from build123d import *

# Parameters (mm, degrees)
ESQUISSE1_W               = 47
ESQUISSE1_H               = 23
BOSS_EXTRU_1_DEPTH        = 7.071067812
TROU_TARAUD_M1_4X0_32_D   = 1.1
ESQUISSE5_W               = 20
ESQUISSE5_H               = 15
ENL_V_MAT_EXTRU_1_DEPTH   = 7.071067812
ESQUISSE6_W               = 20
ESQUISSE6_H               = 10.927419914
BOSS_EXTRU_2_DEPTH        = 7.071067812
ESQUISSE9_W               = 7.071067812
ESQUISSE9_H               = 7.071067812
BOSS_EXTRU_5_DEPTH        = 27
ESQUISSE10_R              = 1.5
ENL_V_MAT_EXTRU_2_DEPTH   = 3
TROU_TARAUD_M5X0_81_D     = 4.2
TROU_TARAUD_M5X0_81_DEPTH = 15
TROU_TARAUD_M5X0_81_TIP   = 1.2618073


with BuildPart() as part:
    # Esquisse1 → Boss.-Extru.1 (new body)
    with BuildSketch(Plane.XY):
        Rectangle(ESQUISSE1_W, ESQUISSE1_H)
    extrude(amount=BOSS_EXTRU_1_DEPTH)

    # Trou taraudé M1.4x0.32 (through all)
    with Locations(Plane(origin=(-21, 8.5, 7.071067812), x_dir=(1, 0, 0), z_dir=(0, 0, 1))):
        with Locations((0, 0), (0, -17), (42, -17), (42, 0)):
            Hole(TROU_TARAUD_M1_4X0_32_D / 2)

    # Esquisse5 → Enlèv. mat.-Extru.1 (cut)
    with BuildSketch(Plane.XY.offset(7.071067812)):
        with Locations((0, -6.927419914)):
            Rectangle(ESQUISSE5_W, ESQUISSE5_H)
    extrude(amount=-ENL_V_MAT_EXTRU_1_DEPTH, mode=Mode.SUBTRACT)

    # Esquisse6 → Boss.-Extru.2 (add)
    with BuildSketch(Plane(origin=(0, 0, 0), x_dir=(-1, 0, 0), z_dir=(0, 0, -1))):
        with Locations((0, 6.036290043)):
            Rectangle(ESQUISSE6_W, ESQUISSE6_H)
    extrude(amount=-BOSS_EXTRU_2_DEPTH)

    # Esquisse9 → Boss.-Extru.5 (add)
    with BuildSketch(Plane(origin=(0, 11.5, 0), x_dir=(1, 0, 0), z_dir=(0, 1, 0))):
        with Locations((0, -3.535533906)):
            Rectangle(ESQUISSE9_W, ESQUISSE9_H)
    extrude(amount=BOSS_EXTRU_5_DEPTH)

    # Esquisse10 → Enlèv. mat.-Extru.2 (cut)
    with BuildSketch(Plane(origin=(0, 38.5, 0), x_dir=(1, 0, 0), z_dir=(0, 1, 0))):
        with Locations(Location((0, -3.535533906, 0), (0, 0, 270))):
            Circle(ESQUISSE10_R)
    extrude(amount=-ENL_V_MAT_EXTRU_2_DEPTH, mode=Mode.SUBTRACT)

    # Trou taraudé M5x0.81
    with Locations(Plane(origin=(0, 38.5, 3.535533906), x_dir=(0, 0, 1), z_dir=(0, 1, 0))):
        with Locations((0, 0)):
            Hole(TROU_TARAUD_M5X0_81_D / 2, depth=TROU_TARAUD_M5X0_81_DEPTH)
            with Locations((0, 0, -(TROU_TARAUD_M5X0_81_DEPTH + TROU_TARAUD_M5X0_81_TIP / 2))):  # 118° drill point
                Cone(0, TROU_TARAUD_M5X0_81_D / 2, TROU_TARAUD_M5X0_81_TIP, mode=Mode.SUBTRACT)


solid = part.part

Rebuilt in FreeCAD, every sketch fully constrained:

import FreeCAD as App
import Part
import Sketcher

V = App.Vector
Q = App.Units.Quantity


def add_polygon(sketch, points):
    """Adds a closed chain of lines whose ends are joined by coincident constraints."""
    first, n = sketch.GeometryCount, len(points)
    for a, b in zip(points, points[1:] + points[:1]):
        sketch.addGeometry(Part.LineSegment(App.Vector(*a, 0), App.Vector(*b, 0)), False)
    for i in range(n):
        sketch.addConstraint(Sketcher.Constraint("Coincident", first + i, 2, first + (i + 1) % n, 1))

doc = App.newDocument("Part")
body = doc.addObject("PartDesign::Body", "Body")

sketch1 = body.newObject("Sketcher::SketchObject", "Sketch")
sketch1.AttachmentSupport = (doc.getObject("XY_Plane"), [""])
sketch1.MapMode = "FlatFace"
add_polygon(sketch1, [(-24, 12), (-24, -12), (24, -12), (24, 12)])
sketch1.addConstraint(Sketcher.Constraint("Vertical", 0))
sketch1.addConstraint(Sketcher.Constraint("Horizontal", 1))
sketch1.addConstraint(Sketcher.Constraint("Vertical", 2))
sketch1.addConstraint(Sketcher.Constraint("Horizontal", 3))
sketch1.addConstraint(Sketcher.Constraint("Symmetric", 0, 2, 2, 2, -1, 1))
sketch1.addConstraint(Sketcher.Constraint("DistanceX", 1, 1, 1, 2, Q("47 mm")))
sketch1.addConstraint(Sketcher.Constraint("DistanceY", 0, 2, 0, 1, Q("23 mm")))
pad1 = body.newObject("PartDesign::Pad", "Pad")
pad1.Profile = sketch1
pad1.Length = 7.071068

sketch2 = body.newObject("Sketcher::SketchObject", "Sketch001")
sketch2.AttachmentSupport = (doc.getObject("XY_Plane"), [""])
sketch2.MapMode = "FlatFace"
sketch2.AttachmentOffset = App.Placement(V(0, 0, 7.071068), App.Rotation())
sketch2.addGeometry(Part.Circle(V(-21, 8.5, 0), V(0, 0, 1), 0.6), False)
sketch2.addGeometry(Part.Circle(V(-21, -8.5, 0), V(0, 0, 1), 0.6), False)
sketch2.addGeometry(Part.Circle(V(21, -8.5, 0), V(0, 0, 1), 0.6), False)
sketch2.addGeometry(Part.Circle(V(21, 8.5, 0), V(0, 0, 1), 0.6), False)
sketch2.addConstraint(Sketcher.Constraint("Equal", 0, 1))
sketch2.addConstraint(Sketcher.Constraint("Equal", 1, 2))
sketch2.addConstraint(Sketcher.Constraint("Equal", 2, 3))
sketch2.addConstraint(Sketcher.Constraint("Symmetric", 0, 3, 2, 3, -1, 1))
sketch2.addConstraint(Sketcher.Constraint("Symmetric", 1, 3, 3, 3, -1, 1))
sketch2.addConstraint(Sketcher.Constraint("Symmetric", 1, 3, 2, 3, -2))
sketch2.addConstraint(Sketcher.Constraint("Diameter", 0, Q("1.1 mm")))
sketch2.addConstraint(Sketcher.Constraint("DistanceX", 0, 3, -1, 1, Q("21 mm")))
sketch2.addConstraint(Sketcher.Constraint("DistanceY", 1, 3, 0, 3, Q("17 mm")))
doc.recompute()
hole = body.newObject("PartDesign::Hole", "Hole")
hole.Profile = sketch2
hole.ThreadType = "None"
hole.Diameter = 1.1
hole.DepthType = "ThroughAll"

sketch3 = body.newObject("Sketcher::SketchObject", "Sketch002")
sketch3.AttachmentSupport = (doc.getObject("XY_Plane"), [""])
sketch3.MapMode = "FlatFace"
sketch3.AttachmentOffset = App.Placement(V(0, 0, 7.071068), App.Rotation())
add_polygon(sketch3, [(-10, 1), (-10, -14), (10, -14), (10, 1)])
sketch3.addConstraint(Sketcher.Constraint("Vertical", 0))
sketch3.addConstraint(Sketcher.Constraint("Horizontal", 1))
sketch3.addConstraint(Sketcher.Constraint("Vertical", 2))
sketch3.addConstraint(Sketcher.Constraint("Horizontal", 3))
sketch3.addConstraint(Sketcher.Constraint("DistanceX", 1, 1, 1, 2, Q("20 mm")))
sketch3.addConstraint(Sketcher.Constraint("DistanceY", 0, 2, 0, 1, Q("15 mm")))
sketch3.addConstraint(Sketcher.Constraint("DistanceX", 0, 2, -1, 1, Q("10 mm")))
sketch3.addConstraint(Sketcher.Constraint("DistanceY", 0, 2, -1, 1, Q("14.42742 mm")))
pocket1 = body.newObject("PartDesign::Pocket", "Pocket")
pocket1.Profile = sketch3
pocket1.Length = 7.071068

sketch4 = body.newObject("Sketcher::SketchObject", "Sketch003")
sketch4.AttachmentSupport = (doc.getObject("XY_Plane"), [""])
sketch4.MapMode = "FlatFace"
add_polygon(sketch4, [(10, 12), (10, 1), (-10, 1), (-10, 12)])
sketch4.addConstraint(Sketcher.Constraint("Vertical", 0))
sketch4.addConstraint(Sketcher.Constraint("Horizontal", 1))
sketch4.addConstraint(Sketcher.Constraint("Vertical", 2))
sketch4.addConstraint(Sketcher.Constraint("Horizontal", 3))
sketch4.addConstraint(Sketcher.Constraint("DistanceX", 1, 2, 1, 1, Q("20 mm")))
sketch4.addConstraint(Sketcher.Constraint("DistanceX", -1, 1, 0, 2, Q("10 mm")))
sketch4.addConstraint(Sketcher.Constraint("DistanceY", -1, 1, 2, 2, Q("11.5 mm")))
sketch4.addConstraint(Sketcher.Constraint("DistanceY", 0, 2, 0, 1, Q("10.92742 mm")))
pad2 = body.newObject("PartDesign::Pad", "Pad001")
pad2.Profile = sketch4
pad2.Length = 7.071068

sketch5 = body.newObject("Sketcher::SketchObject", "Sketch004")
sketch5.AttachmentSupport = (doc.getObject("XZ_Plane"), [""])
sketch5.MapMode = "FlatFace"
sketch5.AttachmentOffset = App.Placement(V(0, 0, -11.5), App.Rotation())
add_polygon(sketch5, [(-4, 0), (-4, 7), (4, 7), (4, 0)])
sketch5.addConstraint(Sketcher.Constraint("Vertical", 0))
sketch5.addConstraint(Sketcher.Constraint("Horizontal", 1))
sketch5.addConstraint(Sketcher.Constraint("Vertical", 2))
sketch5.addConstraint(Sketcher.Constraint("Horizontal", 3))
sketch5.addConstraint(Sketcher.Constraint("Symmetric", 2, 2, 3, 2, -1, 1))
sketch5.addConstraint(Sketcher.Constraint("Equal", 3, 0))
sketch5.addConstraint(Sketcher.Constraint("DistanceX", 1, 1, 1, 2, Q("7.071068 mm")))
pad3 = body.newObject("PartDesign::Pad", "Pad002")
pad3.Profile = sketch5
pad3.Length = 27
pad3.Reversed = True

sketch6 = body.newObject("Sketcher::SketchObject", "Sketch005")
sketch6.AttachmentSupport = (doc.getObject("XZ_Plane"), [""])
sketch6.MapMode = "FlatFace"
sketch6.AttachmentOffset = App.Placement(V(0, 0, -38.5), App.Rotation())
sketch6.addGeometry(Part.Circle(V(0, 3.5, 0), V(0, 0, 1), 1.5), False)
sketch6.addConstraint(Sketcher.Constraint("PointOnObject", 0, 3, -2))
sketch6.addConstraint(Sketcher.Constraint("Diameter", 0, Q("3 mm")))
sketch6.addConstraint(Sketcher.Constraint("DistanceY", -1, 1, 0, 3, Q("3.535534 mm")))
pocket2 = body.newObject("PartDesign::Pocket", "Pocket001")
pocket2.Profile = sketch6
pocket2.Length = 3
pocket2.Reversed = True

sketch7 = body.newObject("Sketcher::SketchObject", "Sketch006")
sketch7.AttachmentSupport = (doc.getObject("XZ_Plane"), [""])
sketch7.MapMode = "FlatFace"
sketch7.AttachmentOffset = App.Placement(V(0, 0, -38.5), App.Rotation())
sketch7.addGeometry(Part.Circle(V(0, 3.5, 0), V(0, 0, 1), 2.1), False)
sketch7.addConstraint(Sketcher.Constraint("PointOnObject", 0, 3, -2))
sketch7.addConstraint(Sketcher.Constraint("Diameter", 0, Q("4.2 mm")))
sketch7.addConstraint(Sketcher.Constraint("DistanceY", -1, 1, 0, 3, Q("3.535534 mm")))
doc.recompute()
hole2 = body.newObject("PartDesign::Hole", "Hole001")
hole2.Profile = sketch7
hole2.ThreadType = "None"
hole2.Diameter = 4.2
hole2.DepthType = "Dimension"
hole2.Depth = 15
hole2.DrillPoint = "Angled"
hole2.DrillPointAngle = 118
hole2.Reversed = True

doc.recompute()
